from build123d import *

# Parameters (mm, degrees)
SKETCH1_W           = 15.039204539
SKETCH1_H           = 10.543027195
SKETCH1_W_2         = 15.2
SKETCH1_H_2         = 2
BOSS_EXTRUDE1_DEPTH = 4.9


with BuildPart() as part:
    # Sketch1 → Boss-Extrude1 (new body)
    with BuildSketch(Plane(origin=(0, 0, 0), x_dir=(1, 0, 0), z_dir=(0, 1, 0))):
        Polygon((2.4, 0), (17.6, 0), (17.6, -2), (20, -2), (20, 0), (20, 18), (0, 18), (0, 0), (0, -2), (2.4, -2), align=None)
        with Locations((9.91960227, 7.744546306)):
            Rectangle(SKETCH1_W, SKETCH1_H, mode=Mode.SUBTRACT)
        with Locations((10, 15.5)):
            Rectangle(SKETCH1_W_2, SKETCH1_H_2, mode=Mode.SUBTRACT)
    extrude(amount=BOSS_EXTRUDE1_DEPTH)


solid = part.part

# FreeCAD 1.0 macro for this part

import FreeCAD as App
import Part
import Sketcher

V = App.Vector

doc = App.newDocument("Part")
body = doc.addObject("PartDesign::Body", "Body")

# Sketch on XZ plane
sketch1 = body.newObject("Sketcher::SketchObject", "Sketch")
sketch1.AttachmentSupport = (doc.getObject("XZ_Plane"), [""])
sketch1.MapMode = "FlatFace"
sketch1.addGeometry(Part.LineSegment(V(2.4, 0, 0), V(17.6, 0, 0)), False)
sketch1.addGeometry(Part.LineSegment(V(17.6, 0, 0), V(17.6, 2, 0)), False)
sketch1.addGeometry(Part.LineSegment(V(17.6, 2, 0), V(20, 2, 0)), False)
sketch1.addGeometry(Part.LineSegment(V(20, 2, 0), V(20, -18, 0)), False)
sketch1.addGeometry(Part.LineSegment(V(20, -18, 0), V(0, -18, 0)), False)
sketch1.addGeometry(Part.LineSegment(V(0, -18, 0), V(0, 2, 0)), False)
sketch1.addGeometry(Part.LineSegment(V(0, 2, 0), V(2.4, 2, 0)), False)
sketch1.addGeometry(Part.LineSegment(V(2.4, 2, 0), V(2.4, 0, 0)), False)
sketch1.addGeometry(Part.LineSegment(V(17.4, -2.5, 0), V(2.4, -2.5, 0)), False)
sketch1.addGeometry(Part.LineSegment(V(2.4, -2.5, 0), V(2.4, -13, 0)), False)
sketch1.addGeometry(Part.LineSegment(V(2.4, -13, 0), V(17.4, -13, 0)), False)
sketch1.addGeometry(Part.LineSegment(V(17.4, -13, 0), V(17.4, -2.5, 0)), False)
sketch1.addGeometry(Part.LineSegment(V(17.6, -14.5, 0), V(2.4, -14.5, 0)), False)
sketch1.addGeometry(Part.LineSegment(V(2.4, -14.5, 0), V(2.4, -16.5, 0)), False)
sketch1.addGeometry(Part.LineSegment(V(2.4, -16.5, 0), V(17.6, -16.5, 0)), False)
sketch1.addGeometry(Part.LineSegment(V(17.6, -16.5, 0), V(17.6, -14.5, 0)), False)
sketch1.addConstraint(Sketcher.Constraint("Coincident", 0, 2, 1, 1))
sketch1.addConstraint(Sketcher.Constraint("Coincident", 1, 2, 2, 1))
sketch1.addConstraint(Sketcher.Constraint("Coincident", 2, 2, 3, 1))
sketch1.addConstraint(Sketcher.Constraint("Coincident", 3, 2, 4, 1))
sketch1.addConstraint(Sketcher.Constraint("Coincident", 4, 2, 5, 1))
sketch1.addConstraint(Sketcher.Constraint("Coincident", 5, 2, 6, 1))
sketch1.addConstraint(Sketcher.Constraint("Coincident", 6, 2, 7, 1))
sketch1.addConstraint(Sketcher.Constraint("Coincident", 7, 2, 0, 1))
sketch1.addConstraint(Sketcher.Constraint("Coincident", 8, 2, 9, 1))
sketch1.addConstraint(Sketcher.Constraint("Coincident", 9, 2, 10, 1))
sketch1.addConstraint(Sketcher.Constraint("Coincident", 10, 2, 11, 1))
sketch1.addConstraint(Sketcher.Constraint("Coincident", 11, 2, 8, 1))
sketch1.addConstraint(Sketcher.Constraint("Coincident", 12, 2, 13, 1))
sketch1.addConstraint(Sketcher.Constraint("Coincident", 13, 2, 14, 1))
sketch1.addConstraint(Sketcher.Constraint("Coincident", 14, 2, 15, 1))
sketch1.addConstraint(Sketcher.Constraint("Coincident", 15, 2, 12, 1))
sketch1.addConstraint(Sketcher.Constraint("Horizontal", 0))
sketch1.addConstraint(Sketcher.Constraint("Vertical", 1))
sketch1.addConstraint(Sketcher.Constraint("Horizontal", 2))
sketch1.addConstraint(Sketcher.Constraint("Vertical", 3))
sketch1.addConstraint(Sketcher.Constraint("Horizontal", 4))
sketch1.addConstraint(Sketcher.Constraint("Vertical", 5))
sketch1.addConstraint(Sketcher.Constraint("Horizontal", 6))
sketch1.addConstraint(Sketcher.Constraint("Vertical", 7))
sketch1.addConstraint(Sketcher.Constraint("Horizontal", 8))
sketch1.addConstraint(Sketcher.Constraint("Vertical", 9))
sketch1.addConstraint(Sketcher.Constraint("Horizontal", 10))
sketch1.addConstraint(Sketcher.Constraint("Vertical", 11))
sketch1.addConstraint(Sketcher.Constraint("Horizontal", 12))
sketch1.addConstraint(Sketcher.Constraint("Vertical", 13))
sketch1.addConstraint(Sketcher.Constraint("Horizontal", 14))
sketch1.addConstraint(Sketcher.Constraint("Vertical", 15))
sketch1.addConstraint(Sketcher.Constraint("PointOnObject", 0, 2, -1))
sketch1.addConstraint(Sketcher.Constraint("PointOnObject", 4, 2, -2))
sketch1.addConstraint(Sketcher.Constraint("Horizontal", 2, 2, 5, 2))
sketch1.addConstraint(Sketcher.Constraint("Vertical", 7, 2, 8, 2))
sketch1.addConstraint(Sketcher.Constraint("Vertical", 9, 2, 12, 2))
sketch1.addConstraint(Sketcher.Constraint("Vertical", 1, 2, 14, 2))
sketch1.addConstraint(Sketcher.Constraint("Equal", 2, 6))
sketch1.addConstraint(Sketcher.Constraint("Equal", 4, 3))
sketch1.addConstraint(Sketcher.Constraint("Equal", 7, 13))
sketch1.addConstraint(Sketcher.Constraint("DistanceX", 4, 2, 4, 1, 20.0))
sketch1.addConstraint(Sketcher.Constraint("DistanceY", 1, 1, 1, 2, 2.0))
sketch1.addConstraint(Sketcher.Constraint("DistanceX", 0, 1, 0, 2, 15.2))
sketch1.addConstraint(Sketcher.Constraint("DistanceY", 12, 2, -1, 1, 14.5))
sketch1.addConstraint(Sketcher.Constraint("DistanceX", 8, 2, 8, 1, 15.039205))
sketch1.addConstraint(Sketcher.Constraint("DistanceY", 9, 2, 9, 1, 10.543027))
sketch1.addConstraint(Sketcher.Constraint("DistanceY", 9, 2, -1, 1, 13.01606))
pad1 = body.newObject("PartDesign::Pad", "Pad")
pad1.Profile = sketch1
pad1.Length = 4.9
pad1.Reversed = True

doc.recompute()
